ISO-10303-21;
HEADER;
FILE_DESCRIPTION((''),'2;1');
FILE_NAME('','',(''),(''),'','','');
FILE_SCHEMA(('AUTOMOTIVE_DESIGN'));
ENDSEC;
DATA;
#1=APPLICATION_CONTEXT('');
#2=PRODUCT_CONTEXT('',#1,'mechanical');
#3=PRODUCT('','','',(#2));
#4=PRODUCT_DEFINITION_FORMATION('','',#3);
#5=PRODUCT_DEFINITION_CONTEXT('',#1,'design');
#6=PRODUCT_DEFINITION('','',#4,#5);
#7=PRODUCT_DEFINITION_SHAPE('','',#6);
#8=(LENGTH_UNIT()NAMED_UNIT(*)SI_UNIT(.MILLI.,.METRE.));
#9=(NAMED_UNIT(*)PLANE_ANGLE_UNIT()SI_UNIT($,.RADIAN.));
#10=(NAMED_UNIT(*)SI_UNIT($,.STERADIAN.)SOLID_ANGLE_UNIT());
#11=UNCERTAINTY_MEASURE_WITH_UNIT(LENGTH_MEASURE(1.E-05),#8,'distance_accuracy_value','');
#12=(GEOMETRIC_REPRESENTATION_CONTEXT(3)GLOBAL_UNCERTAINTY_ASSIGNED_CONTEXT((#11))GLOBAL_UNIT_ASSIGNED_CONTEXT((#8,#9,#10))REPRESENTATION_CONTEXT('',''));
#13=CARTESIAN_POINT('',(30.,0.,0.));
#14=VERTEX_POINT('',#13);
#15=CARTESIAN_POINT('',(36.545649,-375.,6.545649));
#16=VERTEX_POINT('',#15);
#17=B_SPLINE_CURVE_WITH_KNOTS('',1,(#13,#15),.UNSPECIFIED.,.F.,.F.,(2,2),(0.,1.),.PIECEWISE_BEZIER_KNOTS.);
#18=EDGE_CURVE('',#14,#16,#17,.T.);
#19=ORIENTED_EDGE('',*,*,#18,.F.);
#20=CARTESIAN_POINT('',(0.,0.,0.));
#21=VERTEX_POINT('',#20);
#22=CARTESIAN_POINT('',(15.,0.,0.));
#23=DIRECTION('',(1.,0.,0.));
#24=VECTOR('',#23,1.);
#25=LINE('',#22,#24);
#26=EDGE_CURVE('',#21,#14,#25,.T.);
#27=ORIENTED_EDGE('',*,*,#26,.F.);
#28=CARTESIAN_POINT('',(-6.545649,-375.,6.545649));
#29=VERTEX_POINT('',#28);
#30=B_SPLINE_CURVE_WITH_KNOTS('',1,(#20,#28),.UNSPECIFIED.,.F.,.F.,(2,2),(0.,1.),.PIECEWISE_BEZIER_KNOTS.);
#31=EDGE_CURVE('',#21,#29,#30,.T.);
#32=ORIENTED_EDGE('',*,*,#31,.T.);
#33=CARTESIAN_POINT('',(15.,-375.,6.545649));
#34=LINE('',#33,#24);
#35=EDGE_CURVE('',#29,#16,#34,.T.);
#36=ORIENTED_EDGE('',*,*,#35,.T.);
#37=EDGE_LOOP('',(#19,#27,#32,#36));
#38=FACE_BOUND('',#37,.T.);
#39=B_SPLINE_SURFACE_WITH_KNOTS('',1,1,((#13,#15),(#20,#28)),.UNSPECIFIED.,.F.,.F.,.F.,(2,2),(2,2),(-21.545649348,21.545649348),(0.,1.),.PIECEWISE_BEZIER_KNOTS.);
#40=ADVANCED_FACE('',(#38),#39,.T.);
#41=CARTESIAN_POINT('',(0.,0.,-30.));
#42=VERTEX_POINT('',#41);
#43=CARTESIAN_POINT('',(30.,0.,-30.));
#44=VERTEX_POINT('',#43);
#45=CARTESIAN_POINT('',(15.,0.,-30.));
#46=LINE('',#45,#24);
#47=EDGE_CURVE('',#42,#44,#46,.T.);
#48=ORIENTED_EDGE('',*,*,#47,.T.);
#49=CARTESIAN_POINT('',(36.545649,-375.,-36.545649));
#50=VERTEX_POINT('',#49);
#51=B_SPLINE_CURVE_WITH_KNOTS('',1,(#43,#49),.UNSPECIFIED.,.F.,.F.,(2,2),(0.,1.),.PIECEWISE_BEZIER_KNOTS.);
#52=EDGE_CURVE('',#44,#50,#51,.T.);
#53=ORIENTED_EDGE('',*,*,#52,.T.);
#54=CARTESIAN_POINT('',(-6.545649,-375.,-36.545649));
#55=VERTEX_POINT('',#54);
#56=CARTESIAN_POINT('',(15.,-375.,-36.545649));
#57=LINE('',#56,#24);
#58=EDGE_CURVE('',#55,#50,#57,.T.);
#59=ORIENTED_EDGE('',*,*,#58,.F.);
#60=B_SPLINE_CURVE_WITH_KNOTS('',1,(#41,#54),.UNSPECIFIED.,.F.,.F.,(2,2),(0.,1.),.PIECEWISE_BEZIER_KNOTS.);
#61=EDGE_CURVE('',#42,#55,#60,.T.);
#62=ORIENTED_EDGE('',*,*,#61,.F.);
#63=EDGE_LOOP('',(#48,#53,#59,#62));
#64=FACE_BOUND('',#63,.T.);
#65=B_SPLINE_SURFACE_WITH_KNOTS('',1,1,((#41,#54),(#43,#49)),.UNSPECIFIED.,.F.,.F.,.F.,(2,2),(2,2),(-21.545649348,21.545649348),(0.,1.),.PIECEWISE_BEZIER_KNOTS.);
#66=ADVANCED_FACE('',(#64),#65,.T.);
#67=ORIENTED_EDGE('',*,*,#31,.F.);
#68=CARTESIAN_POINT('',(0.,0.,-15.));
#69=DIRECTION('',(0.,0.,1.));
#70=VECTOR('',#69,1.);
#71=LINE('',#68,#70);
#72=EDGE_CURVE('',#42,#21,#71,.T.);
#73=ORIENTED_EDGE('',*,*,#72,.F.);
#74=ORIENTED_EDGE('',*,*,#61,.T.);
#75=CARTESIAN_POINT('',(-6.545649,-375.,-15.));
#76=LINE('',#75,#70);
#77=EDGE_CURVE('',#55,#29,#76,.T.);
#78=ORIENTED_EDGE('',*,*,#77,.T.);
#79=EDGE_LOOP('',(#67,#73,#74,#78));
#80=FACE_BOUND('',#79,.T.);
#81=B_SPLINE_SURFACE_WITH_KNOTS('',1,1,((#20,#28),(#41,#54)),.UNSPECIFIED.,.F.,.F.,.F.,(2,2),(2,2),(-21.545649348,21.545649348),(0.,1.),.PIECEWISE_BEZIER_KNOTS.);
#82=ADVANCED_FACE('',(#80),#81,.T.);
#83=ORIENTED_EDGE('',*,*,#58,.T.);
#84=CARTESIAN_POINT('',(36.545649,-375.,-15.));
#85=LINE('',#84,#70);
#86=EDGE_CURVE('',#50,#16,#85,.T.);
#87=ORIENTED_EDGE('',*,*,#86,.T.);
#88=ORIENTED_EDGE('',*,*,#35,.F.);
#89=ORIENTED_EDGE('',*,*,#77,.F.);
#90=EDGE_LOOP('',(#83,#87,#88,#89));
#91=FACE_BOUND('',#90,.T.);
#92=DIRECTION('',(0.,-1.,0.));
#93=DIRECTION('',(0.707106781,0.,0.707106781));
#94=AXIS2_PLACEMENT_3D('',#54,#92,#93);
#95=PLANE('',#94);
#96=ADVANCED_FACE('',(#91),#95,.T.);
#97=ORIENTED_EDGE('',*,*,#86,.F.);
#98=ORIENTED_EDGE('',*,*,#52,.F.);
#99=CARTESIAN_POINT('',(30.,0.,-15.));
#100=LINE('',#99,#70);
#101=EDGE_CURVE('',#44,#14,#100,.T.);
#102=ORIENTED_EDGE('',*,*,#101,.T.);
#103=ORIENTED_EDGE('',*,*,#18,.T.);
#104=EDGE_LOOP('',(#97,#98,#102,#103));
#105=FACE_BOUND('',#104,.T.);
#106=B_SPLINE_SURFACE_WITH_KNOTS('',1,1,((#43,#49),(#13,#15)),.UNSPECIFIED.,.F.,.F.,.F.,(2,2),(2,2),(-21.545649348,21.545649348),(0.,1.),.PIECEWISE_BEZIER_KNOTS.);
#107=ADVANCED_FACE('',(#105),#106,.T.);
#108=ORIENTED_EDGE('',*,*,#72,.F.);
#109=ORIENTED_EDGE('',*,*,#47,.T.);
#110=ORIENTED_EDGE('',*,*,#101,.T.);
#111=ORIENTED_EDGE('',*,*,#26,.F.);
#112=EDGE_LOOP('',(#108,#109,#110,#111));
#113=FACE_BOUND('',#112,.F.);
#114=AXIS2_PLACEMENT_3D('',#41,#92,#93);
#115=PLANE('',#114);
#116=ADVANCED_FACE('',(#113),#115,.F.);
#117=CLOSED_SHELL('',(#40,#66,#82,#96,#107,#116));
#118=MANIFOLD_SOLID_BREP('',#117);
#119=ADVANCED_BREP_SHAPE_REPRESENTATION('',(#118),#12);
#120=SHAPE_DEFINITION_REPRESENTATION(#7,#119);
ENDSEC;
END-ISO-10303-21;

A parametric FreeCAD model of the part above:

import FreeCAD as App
import Part
import Sketcher


def add_polygon(sketch, points):
    """Adds a closed chain of lines whose ends are joined by coincident constraints."""
    first, n = sketch.GeometryCount, len(points)
    for a, b in zip(points, points[1:] + points[:1]):
        sketch.addGeometry(Part.LineSegment(App.Vector(*a, 0), App.Vector(*b, 0)), False)
    for i in range(n):
        sketch.addConstraint(Sketcher.Constraint("Coincident", first + i, 2, first + (i + 1) % n, 1))

doc = App.newDocument("Part")
params = doc.addObject("Spreadsheet::Sheet", "Params")
for row, (alias, value) in enumerate([
    ("sketch1_width", "30 mm"),
    ("pad1_length", "375 mm"),
    ("pad1_taper", "1 deg"),
], start=1):
    params.set(f"A{row}", alias)
    params.set(f"B{row}", "=" + value)
    params.setAlias(f"B{row}", alias)

body = doc.addObject("PartDesign::Body", "Body")

sketch1 = doc.addObject("Sketcher::SketchObject", "Sketch")
body.addObject(sketch1)
sketch1.AttachmentSupport = (doc.XZ_Plane, [""])
sketch1.MapMode = "FlatFace"
add_polygon(sketch1, [(0, 0), (0, -30), (30, -30), (30, 0)])
sketch1.addConstraint([
    Sketcher.Constraint("Vertical", 0),
    Sketcher.Constraint("Horizontal", 1),
    Sketcher.Constraint("Vertical", 2),
    Sketcher.Constraint("Horizontal", 3),
    Sketcher.Constraint("Coincident", 3, 2, -1, 1),
    Sketcher.Constraint("Equal", 3, 0),
    Sketcher.Constraint("DistanceX", 1, 1, 1, 2, 30.0),
])
sketch1.setExpression("Constraints[10]", "Params.sketch1_width")
pad1 = doc.addObject("PartDesign::Pad", "Pad")
body.addObject(pad1)
pad1.Profile = sketch1
pad1.setExpression("Length", "Params.pad1_length")
pad1.setExpression("TaperAngle", "Params.pad1_taper")

doc.recompute()
